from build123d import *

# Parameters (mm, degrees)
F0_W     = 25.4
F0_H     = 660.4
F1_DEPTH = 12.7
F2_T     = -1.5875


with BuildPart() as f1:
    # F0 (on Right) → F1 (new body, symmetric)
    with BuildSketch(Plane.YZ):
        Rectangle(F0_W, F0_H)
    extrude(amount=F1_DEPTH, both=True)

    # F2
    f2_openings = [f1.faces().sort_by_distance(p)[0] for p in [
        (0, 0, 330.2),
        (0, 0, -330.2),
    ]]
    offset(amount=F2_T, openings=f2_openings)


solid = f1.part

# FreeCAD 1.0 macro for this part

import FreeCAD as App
import Part
import Sketcher

V = App.Vector
Q = App.Units.Quantity


def faces_at(feature, points):
    """Names of the faces that lie closest to the given points."""
    faces = feature.Shape.Faces
    near = lambda p: min(range(len(faces)), key=lambda i: faces[i].distToShape(Part.Vertex(*p))[0])
    return sorted({f"Face{near(p) + 1}" for p in points})

doc = App.newDocument("Part")
params = doc.addObject("Spreadsheet::Sheet", "Params")
for row, (alias, value) in enumerate([
    ("sketch1_width", "1 in"),
    ("sketch1_height", "26 in"),
    ("pad1_length", "1 in"),
    ("thickness_wall", "0.0625 in"),
], start=1):
    params.set(f"A{row}", alias)
    params.set(f"B{row}", "=" + value)
    params.setAlias(f"B{row}", alias)

body = doc.addObject("PartDesign::Body", "Body")

# Sketch on YZ plane
sketch1 = body.newObject("Sketcher::SketchObject", "Sketch")
sketch1.AttachmentSupport = (doc.getObject("YZ_Plane"), [""])
sketch1.MapMode = "FlatFace"
sketch1.addGeometry(Part.LineSegment(V(-13, 330, 0), V(-13, -330, 0)), False)
sketch1.addGeometry(Part.LineSegment(V(-13, -330, 0), V(13, -330, 0)), False)
sketch1.addGeometry(Part.LineSegment(V(13, -330, 0), V(13, 330, 0)), False)
sketch1.addGeometry(Part.LineSegment(V(13, 330, 0), V(-13, 330, 0)), False)
sketch1.addConstraint(Sketcher.Constraint("Coincident", 0, 2, 1, 1))
sketch1.addConstraint(Sketcher.Constraint("Coincident", 1, 2, 2, 1))
sketch1.addConstraint(Sketcher.Constraint("Coincident", 2, 2, 3, 1))
sketch1.addConstraint(Sketcher.Constraint("Coincident", 3, 2, 0, 1))
sketch1.addConstraint(Sketcher.Constraint("Vertical", 0))
sketch1.addConstraint(Sketcher.Constraint("Horizontal", 1))
sketch1.addConstraint(Sketcher.Constraint("Vertical", 2))
sketch1.addConstraint(Sketcher.Constraint("Horizontal", 3))
sketch1.addConstraint(Sketcher.Constraint("Symmetric", 0, 2, 2, 2, -1, 1))
sketch1.addConstraint(Sketcher.Constraint("DistanceX", 1, 1, 1, 2, Q("1 in")))
sketch1.addConstraint(Sketcher.Constraint("DistanceY", 0, 2, 0, 1, Q("26 in")))
sketch1.setExpression("Constraints[9]", "Params.sketch1_width")
sketch1.setExpression("Constraints[10]", "Params.sketch1_height")
pad1 = body.newObject("PartDesign::Pad", "Pad")
pad1.Profile = sketch1
pad1.setExpression("Length", "Params.pad1_length")
pad1.Midplane = True
doc.recompute()

thickness = body.newObject("PartDesign::Thickness", "Thickness")
thickness.Base = (pad1, faces_at(pad1, [(0, 0, 330.2), (0, 0, -330.2)]))
thickness.setExpression("Value", "Params.thickness_wall")
thickness.Reversed = True
thickness.Join = "Arc"

doc.recompute()
